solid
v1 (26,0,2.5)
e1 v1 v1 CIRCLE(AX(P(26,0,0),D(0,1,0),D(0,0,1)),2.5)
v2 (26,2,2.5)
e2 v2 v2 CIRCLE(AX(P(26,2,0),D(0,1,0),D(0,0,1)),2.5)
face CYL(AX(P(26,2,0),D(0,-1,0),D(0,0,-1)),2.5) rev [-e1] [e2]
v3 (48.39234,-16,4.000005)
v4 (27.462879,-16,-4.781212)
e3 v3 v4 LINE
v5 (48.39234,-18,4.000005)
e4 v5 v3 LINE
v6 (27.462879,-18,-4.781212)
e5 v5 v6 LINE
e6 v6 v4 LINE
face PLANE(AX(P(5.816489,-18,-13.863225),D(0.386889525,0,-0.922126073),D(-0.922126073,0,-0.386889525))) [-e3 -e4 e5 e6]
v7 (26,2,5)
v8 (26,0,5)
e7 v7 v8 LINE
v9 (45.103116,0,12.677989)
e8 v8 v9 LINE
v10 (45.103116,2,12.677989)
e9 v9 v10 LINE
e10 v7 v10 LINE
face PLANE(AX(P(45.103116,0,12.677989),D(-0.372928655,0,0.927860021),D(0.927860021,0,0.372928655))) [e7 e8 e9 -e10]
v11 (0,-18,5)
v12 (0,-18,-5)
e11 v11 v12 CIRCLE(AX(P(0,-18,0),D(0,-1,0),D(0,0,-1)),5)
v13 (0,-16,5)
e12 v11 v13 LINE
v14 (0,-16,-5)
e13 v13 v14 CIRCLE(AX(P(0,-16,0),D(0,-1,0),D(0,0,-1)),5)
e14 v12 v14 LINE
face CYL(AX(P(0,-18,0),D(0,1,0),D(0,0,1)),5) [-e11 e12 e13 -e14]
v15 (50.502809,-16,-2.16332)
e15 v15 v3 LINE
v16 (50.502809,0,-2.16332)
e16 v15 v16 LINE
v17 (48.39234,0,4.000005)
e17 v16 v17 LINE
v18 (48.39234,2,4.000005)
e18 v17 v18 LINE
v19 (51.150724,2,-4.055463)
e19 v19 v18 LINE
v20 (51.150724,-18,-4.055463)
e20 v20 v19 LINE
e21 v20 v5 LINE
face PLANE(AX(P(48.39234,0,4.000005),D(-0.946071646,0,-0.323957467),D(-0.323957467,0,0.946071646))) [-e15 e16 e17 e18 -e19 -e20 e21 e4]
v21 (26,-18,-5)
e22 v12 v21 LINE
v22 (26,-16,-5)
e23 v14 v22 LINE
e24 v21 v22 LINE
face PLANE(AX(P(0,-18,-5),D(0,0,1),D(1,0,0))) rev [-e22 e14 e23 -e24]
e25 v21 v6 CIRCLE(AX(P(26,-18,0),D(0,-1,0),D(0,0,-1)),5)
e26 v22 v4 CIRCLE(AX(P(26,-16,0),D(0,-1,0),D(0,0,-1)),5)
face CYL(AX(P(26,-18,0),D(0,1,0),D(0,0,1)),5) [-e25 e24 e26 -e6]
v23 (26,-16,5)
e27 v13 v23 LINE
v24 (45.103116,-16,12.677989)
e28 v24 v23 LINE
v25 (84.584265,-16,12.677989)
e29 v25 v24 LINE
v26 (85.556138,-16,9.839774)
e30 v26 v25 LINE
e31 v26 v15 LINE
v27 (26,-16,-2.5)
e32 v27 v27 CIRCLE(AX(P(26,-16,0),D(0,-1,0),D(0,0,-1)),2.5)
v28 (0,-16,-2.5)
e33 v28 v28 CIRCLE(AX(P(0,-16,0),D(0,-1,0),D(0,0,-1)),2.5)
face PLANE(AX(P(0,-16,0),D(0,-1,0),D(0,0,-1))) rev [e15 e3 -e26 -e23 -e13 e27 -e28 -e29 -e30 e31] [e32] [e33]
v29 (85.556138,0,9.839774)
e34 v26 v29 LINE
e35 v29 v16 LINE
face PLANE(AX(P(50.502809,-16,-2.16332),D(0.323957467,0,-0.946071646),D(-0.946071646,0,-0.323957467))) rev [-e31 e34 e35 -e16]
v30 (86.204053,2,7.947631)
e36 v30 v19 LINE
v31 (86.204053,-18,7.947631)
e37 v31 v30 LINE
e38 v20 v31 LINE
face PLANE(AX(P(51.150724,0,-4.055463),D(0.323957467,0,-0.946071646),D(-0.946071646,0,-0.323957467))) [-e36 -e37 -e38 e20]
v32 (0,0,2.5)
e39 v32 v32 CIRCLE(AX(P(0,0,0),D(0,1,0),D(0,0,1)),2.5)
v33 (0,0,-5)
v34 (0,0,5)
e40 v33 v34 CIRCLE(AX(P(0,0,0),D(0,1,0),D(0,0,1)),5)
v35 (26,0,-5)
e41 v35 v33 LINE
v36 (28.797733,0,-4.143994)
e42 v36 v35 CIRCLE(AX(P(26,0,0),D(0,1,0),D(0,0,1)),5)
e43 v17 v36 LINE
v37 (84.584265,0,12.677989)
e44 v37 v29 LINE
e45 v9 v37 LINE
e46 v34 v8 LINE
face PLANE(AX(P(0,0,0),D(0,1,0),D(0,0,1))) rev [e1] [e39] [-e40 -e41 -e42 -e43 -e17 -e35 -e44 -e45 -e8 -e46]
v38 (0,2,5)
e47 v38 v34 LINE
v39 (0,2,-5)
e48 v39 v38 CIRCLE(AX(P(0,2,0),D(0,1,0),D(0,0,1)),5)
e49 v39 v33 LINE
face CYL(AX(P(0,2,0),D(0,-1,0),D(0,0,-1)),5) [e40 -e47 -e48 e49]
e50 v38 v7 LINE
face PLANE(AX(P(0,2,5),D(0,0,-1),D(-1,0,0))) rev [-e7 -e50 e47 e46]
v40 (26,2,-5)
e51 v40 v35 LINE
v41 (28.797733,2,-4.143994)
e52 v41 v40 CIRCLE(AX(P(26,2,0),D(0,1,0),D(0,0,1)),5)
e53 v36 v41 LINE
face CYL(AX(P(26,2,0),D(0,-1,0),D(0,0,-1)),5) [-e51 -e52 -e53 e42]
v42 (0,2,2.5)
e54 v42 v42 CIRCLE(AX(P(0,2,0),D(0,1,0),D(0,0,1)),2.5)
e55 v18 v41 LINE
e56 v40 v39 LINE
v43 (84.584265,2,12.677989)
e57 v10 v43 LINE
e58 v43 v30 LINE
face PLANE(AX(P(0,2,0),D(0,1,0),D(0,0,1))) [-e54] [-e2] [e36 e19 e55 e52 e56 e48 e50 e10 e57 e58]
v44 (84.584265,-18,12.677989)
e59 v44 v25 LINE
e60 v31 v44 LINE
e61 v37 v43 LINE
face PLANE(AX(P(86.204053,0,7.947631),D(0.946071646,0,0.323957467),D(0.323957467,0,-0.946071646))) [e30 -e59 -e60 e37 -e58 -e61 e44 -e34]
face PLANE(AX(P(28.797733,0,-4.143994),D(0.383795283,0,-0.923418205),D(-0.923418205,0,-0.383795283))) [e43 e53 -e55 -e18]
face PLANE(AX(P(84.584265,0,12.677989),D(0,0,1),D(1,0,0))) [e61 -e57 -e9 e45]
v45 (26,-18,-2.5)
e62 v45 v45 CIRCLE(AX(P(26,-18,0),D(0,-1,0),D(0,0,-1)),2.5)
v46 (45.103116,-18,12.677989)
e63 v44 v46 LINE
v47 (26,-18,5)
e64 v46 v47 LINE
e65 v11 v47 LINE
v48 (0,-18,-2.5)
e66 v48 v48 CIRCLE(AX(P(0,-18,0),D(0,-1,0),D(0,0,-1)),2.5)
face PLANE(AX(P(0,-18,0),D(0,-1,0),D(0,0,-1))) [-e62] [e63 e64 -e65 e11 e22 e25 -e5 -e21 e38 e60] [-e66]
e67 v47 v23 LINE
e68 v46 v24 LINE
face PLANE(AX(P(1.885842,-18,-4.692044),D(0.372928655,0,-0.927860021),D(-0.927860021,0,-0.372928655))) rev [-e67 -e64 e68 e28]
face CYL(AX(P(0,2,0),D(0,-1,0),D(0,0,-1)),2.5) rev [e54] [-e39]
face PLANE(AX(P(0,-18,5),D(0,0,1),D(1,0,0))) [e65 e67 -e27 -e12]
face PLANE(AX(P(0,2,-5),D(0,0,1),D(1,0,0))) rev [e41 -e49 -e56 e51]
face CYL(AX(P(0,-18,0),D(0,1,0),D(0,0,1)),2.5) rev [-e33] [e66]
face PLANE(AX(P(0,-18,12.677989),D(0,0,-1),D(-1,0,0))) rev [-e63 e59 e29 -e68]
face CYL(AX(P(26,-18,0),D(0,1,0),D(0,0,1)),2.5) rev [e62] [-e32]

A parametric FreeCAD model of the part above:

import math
import FreeCAD as App
import Part
import Sketcher
Q = App.Units.Quantity

doc = App.newDocument("Part")
body = doc.addObject("PartDesign::Body", "Body")

# Sketch on XZ plane
sketch1 = body.newObject("Sketcher::SketchObject", "Sketch")
sketch1.AttachmentSupport = (doc.getObject("XZ_Plane"), [""])
sketch1.MapMode = "FlatFace"
sketch1.addGeometry([
    Part.LineSegment(App.Vector(26, -5, 0), App.Vector(0, -5, 0)),  # 0
    Part.ArcOfCircle(Part.Circle(App.Vector(0, 0, 0), App.Vector(0, 0, 1), 5), math.radians(90), math.radians(270)),  # 1
    Part.LineSegment(App.Vector(0, 5, 0), App.Vector(26, 5, 0)),  # 2
    Part.ArcOfCircle(Part.Circle(App.Vector(26, 0, 0), App.Vector(0, 0, 1), 5), math.radians(-90), math.radians(90)),  # 3
    Part.Circle(App.Vector(26, 0, 0), App.Vector(0, 0, 1), 2.5),  # 4
    Part.Circle(App.Vector(0, 0, 0), App.Vector(0, 0, 1), 2.5),  # 5
], False)
sketch1.addConstraint([
    Sketcher.Constraint("Tangent", 0, 2, 1, 2),
    Sketcher.Constraint("Tangent", 1, 1, 2, 1),
    Sketcher.Constraint("Tangent", 2, 2, 3, 2),
    Sketcher.Constraint("Tangent", 3, 1, 0, 1),
    Sketcher.Constraint("Horizontal", 0),
    Sketcher.Constraint("Horizontal", 2),
    Sketcher.Constraint("Coincident", 1, 3, -1, 1),
    Sketcher.Constraint("Coincident", 5, 3, -1, 1),
    Sketcher.Constraint("Coincident", 4, 3, 3, 3),
    Sketcher.Constraint("Equal", 4, 5),
    Sketcher.Constraint("Diameter", 4, Q("5 mm")),
    Sketcher.Constraint("Radius", 1, Q("5 mm")),
    Sketcher.Constraint("DistanceX", 0, 2, 0, 1, Q("26 mm")),
])
pad1 = body.newObject("PartDesign::Pad", "Pad")
pad1.Profile = sketch1
pad1.Length = 2
pad1.Reversed = True

# Sketch on XZ plane
sketch2 = body.newObject("Sketcher::SketchObject", "Sketch001")
sketch2.AttachmentSupport = (doc.getObject("XZ_Plane"), [""])
sketch2.MapMode = "FlatFace"
sketch2.AttachmentOffset = App.Placement(App.Vector(0, 0, -2), App.Rotation())
sketch2.addGeometry([
    Part.LineSegment(App.Vector(48.4, 4, 0), App.Vector(28.8, -4.1, 0)),  # 0
    Part.LineSegment(App.Vector(28.8, -4.1, 0), App.Vector(30, 0.3, 0)),  # 1
    Part.LineSegment(App.Vector(30, 0.3, 0), App.Vector(26, 5, 0)),  # 2
    Part.LineSegment(App.Vector(26, 5, 0), App.Vector(45.1, 12.7, 0)),  # 3
    Part.LineSegment(App.Vector(45.1, 12.7, 0), App.Vector(84.6, 12.7, 0)),  # 4
    Part.LineSegment(App.Vector(84.6, 12.7, 0), App.Vector(86.2, 7.9, 0)),  # 5
    Part.LineSegment(App.Vector(86.2, 7.9, 0), App.Vector(51.2, -4.1, 0)),  # 6
    Part.LineSegment(App.Vector(51.2, -4.1, 0), App.Vector(48.4, 4, 0)),  # 7
], False)
sketch2.addConstraint([
    Sketcher.Constraint("Coincident", 0, 2, 1, 1),
    Sketcher.Constraint("Coincident", 1, 2, 2, 1),
    Sketcher.Constraint("Coincident", 2, 2, 3, 1),
    Sketcher.Constraint("Coincident", 3, 2, 4, 1),
    Sketcher.Constraint("Coincident", 4, 2, 5, 1),
    Sketcher.Constraint("Coincident", 5, 2, 6, 1),
    Sketcher.Constraint("Coincident", 6, 2, 7, 1),
    Sketcher.Constraint("Coincident", 7, 2, 0, 1),
    Sketcher.Constraint("Horizontal", 4),
    Sketcher.Constraint("Perpendicular", 5, 6),
    Sketcher.Constraint("Perpendicular", 6, 7),
    Sketcher.Constraint("Distance", 5, Q("5 mm")),
    Sketcher.Constraint("DistanceX", -1, 1, 2, 2, Q("26 mm")),
    Sketcher.Constraint("DistanceY", -1, 1, 2, 2, Q("5 mm")),
    Sketcher.Constraint("DistanceY", 0, 2, 7, 2, Q("8.144 mm")),
    Sketcher.Constraint("DistanceX", 4, 1, 4, 2, Q("39.481149 mm")),
    Sketcher.Constraint("DistanceY", -1, 1, 1, 2, Q("0.318799 mm")),
    Sketcher.Constraint("Distance", 3, Q("20.58836 mm")),
    Sketcher.Constraint("Distance", 7, Q("8.51465 mm")),
    Sketcher.Constraint("DistanceY", -1, 1, 3, 2, Q("12.677989 mm")),
    Sketcher.Constraint("DistanceY", -1, 1, 5, 2, Q("7.947631 mm")),
    Sketcher.Constraint("DistanceX", -1, 1, 7, 2, Q("48.39234 mm")),
    Sketcher.Constraint("DistanceX", 0, 2, 1, 2, Q("1.248252 mm")),
    Sketcher.Constraint("DistanceX", 1, 2, 3, 2, Q("15.057131 mm")),
])
pad2 = body.newObject("PartDesign::Pad", "Pad001")
pad2.Profile = sketch2
pad2.Length = 2

# Sketch on XZ plane
sketch3 = body.newObject("Sketcher::SketchObject", "Sketch002")
sketch3.AttachmentSupport = (doc.getObject("XZ_Plane"), [""])
sketch3.MapMode = "FlatFace"
sketch3.addGeometry([
    Part.LineSegment(App.Vector(51.2, -4.1, 0), App.Vector(86.2, 7.9, 0)),
    Part.LineSegment(App.Vector(86.2, 7.9, 0), App.Vector(85.6, 9.8, 0)),
    Part.LineSegment(App.Vector(85.6, 9.8, 0), App.Vector(50.5, -2.2, 0)),
    Part.LineSegment(App.Vector(50.5, -2.2, 0), App.Vector(51.2, -4.1, 0)),
], False)
sketch3.addConstraint([
    Sketcher.Constraint("Coincident", 0, 2, 1, 1),
    Sketcher.Constraint("Coincident", 1, 2, 2, 1),
    Sketcher.Constraint("Coincident", 2, 2, 3, 1),
    Sketcher.Constraint("Coincident", 3, 2, 0, 1),
    Sketcher.Constraint("Perpendicular", 0, 1),
    Sketcher.Constraint("Perpendicular", 1, 2),
    Sketcher.Constraint("Perpendicular", 2, 3),
    Sketcher.Constraint("Distance", 1, Q("2 mm")),
    Sketcher.Constraint("DistanceY", -1, 1, 0, 2, Q("7.947631 mm")),
    Sketcher.Constraint("DistanceX", -1, 1, 2, 2, Q("50.502809 mm")),
    Sketcher.Constraint("DistanceY", 2, 2, -1, 1, Q("2.16332 mm")),
    Sketcher.Constraint("DistanceX", 2, 2, 1, 2, Q("35.053328 mm")),
])
pad3 = body.newObject("PartDesign::Pad", "Pad002")
pad3.Profile = sketch3
pad3.Length = 16

# Sketch on XZ plane
sketch4 = body.newObject("Sketcher::SketchObject", "Sketch003")
sketch4.AttachmentSupport = (doc.getObject("XZ_Plane"), [""])
sketch4.MapMode = "FlatFace"
sketch4.AttachmentOffset = App.Placement(App.Vector(0, 0, 18), App.Rotation())
sketch4.addGeometry([
    Part.LineSegment(App.Vector(48.4, 4, 0), App.Vector(51.2, -4.1, 0)),  # 0
    Part.LineSegment(App.Vector(51.2, -4.1, 0), App.Vector(86.2, 7.9, 0)),  # 1
    Part.LineSegment(App.Vector(86.2, 7.9, 0), App.Vector(84.6, 12.7, 0)),  # 2
    Part.LineSegment(App.Vector(84.6, 12.7, 0), App.Vector(45.1, 12.7, 0)),  # 3
    Part.LineSegment(App.Vector(45.1, 12.7, 0), App.Vector(26, 5, 0)),  # 4
    Part.LineSegment(App.Vector(26, 5, 0), App.Vector(0, 5, 0)),  # 5
    Part.ArcOfCircle(Part.Circle(App.Vector(0, 0, 0), App.Vector(0, 0, 1), 5), math.radians(90), math.radians(270)),  # 6
    Part.LineSegment(App.Vector(0, -5, 0), App.Vector(26, -5, 0)),  # 7
    Part.ArcOfCircle(Part.Circle(App.Vector(26, 0, 0), App.Vector(0, 0, 1), 5), math.radians(-90), math.radians(-72.99)),  # 8
    Part.LineSegment(App.Vector(27.5, -4.8, 0), App.Vector(28.4, -4.4, 0)),  # 9
    Part.LineSegment(App.Vector(28.4, -4.4, 0), App.Vector(48.4, 4, 0)),  # 10
    Part.Circle(App.Vector(0, 0, 0), App.Vector(0, 0, 1), 2.5),  # 11
    Part.Circle(App.Vector(26, 0, 0), App.Vector(0, 0, 1), 2.5),  # 12
], False)
sketch4.addConstraint([
    Sketcher.Constraint("Coincident", 0, 2, 1, 1),
    Sketcher.Constraint("Coincident", 1, 2, 2, 1),
    Sketcher.Constraint("Coincident", 2, 2, 3, 1),
    Sketcher.Constraint("Coincident", 3, 2, 4, 1),
    Sketcher.Constraint("Coincident", 4, 2, 5, 1),
    Sketcher.Constraint("Tangent", 5, 2, 6, 1),
    Sketcher.Constraint("Tangent", 6, 2, 7, 1),
    Sketcher.Constraint("Tangent", 7, 2, 8, 1),
    Sketcher.Constraint("Coincident", 8, 2, 9, 1),
    Sketcher.Constraint("Coincident", 9, 2, 10, 1),
    Sketcher.Constraint("Coincident", 10, 2, 0, 1),
    Sketcher.Constraint("Horizontal", 3),
    Sketcher.Constraint("Horizontal", 5),
    Sketcher.Constraint("Horizontal", 7),
    Sketcher.Constraint("Coincident", 6, 3, -1, 1),
    Sketcher.Constraint("Coincident", 11, 3, -1, 1),
    Sketcher.Constraint("Coincident", 12, 3, 8, 3),
    Sketcher.Constraint("Equal", 6, 8),
    Sketcher.Constraint("Equal", 11, 12),
    Sketcher.Constraint("Perpendicular", 0, 1),
    Sketcher.Constraint("Perpendicular", 1, 2),
    Sketcher.Constraint("Parallel", 9, 10),
    Sketcher.Constraint("Vertical", 12, 3, 4, 2),
    Sketcher.Constraint("Diameter", 11, Q("5 mm")),
    Sketcher.Constraint("Radius", 6, Q("5 mm")),
    Sketcher.Constraint("DistanceX", 5, 2, 5, 1, Q("26 mm")),
    Sketcher.Constraint("Distance", 2, Q("5 mm")),
    Sketcher.Constraint("DistanceX", 3, 2, 3, 1, Q("39.481149 mm")),
    Sketcher.Constraint("Distance", 0, Q("8.51465 mm")),
    Sketcher.Constraint("Distance", 4, Q("20.58836 mm")),
    Sketcher.Constraint("Distance", 10, Q("21.695279 mm")),
    Sketcher.Constraint("DistanceY", -1, 1, 1, 2, Q("7.947631 mm")),
    Sketcher.Constraint("DistanceY", -1, 1, 2, 2, Q("12.677989 mm")),
    Sketcher.Constraint("DistanceX", -1, 1, 8, 2, Q("27.462879 mm")),
    Sketcher.Constraint("DistanceY", 9, 2, -1, 1, Q("4.393671 mm")),
])
pad4 = body.newObject("PartDesign::Pad", "Pad003")
pad4.Profile = sketch4
pad4.Length = 2
pad4.Reversed = True

doc.recompute()
